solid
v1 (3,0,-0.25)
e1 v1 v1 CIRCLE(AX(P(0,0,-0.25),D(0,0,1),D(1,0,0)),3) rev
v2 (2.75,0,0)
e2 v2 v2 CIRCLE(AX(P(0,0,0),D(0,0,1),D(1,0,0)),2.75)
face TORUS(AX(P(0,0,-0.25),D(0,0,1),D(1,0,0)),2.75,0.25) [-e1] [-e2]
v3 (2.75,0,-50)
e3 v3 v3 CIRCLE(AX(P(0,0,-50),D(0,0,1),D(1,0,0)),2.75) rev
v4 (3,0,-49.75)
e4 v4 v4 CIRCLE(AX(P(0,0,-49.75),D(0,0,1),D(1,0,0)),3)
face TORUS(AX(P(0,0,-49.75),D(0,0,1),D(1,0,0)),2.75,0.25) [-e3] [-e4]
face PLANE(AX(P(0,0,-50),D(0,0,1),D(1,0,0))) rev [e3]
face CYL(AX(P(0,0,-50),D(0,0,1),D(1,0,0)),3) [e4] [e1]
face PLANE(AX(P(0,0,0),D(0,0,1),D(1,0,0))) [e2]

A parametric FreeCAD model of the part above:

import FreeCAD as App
import Part
import Sketcher
from FreeCAD import Vector


def edges_at(feature, points):
    """Names of the edges that pass closest to the given points."""
    edges = feature.Shape.Edges
    near = lambda p: min(range(len(edges)), key=lambda i: edges[i].distToShape(Part.Vertex(*p))[0])
    return sorted({f"Edge{near(p) + 1}" for p in points})

doc = App.newDocument("Part")
body = doc.addObject("PartDesign::Body", "Body")

# Sketch on XY plane
sketch1 = body.newObject("Sketcher::SketchObject", "Sketch")
sketch1.AttachmentSupport = (doc.getObject("XY_Plane"), [""])
sketch1.MapMode = "FlatFace"
sketch1.addGeometry(Part.Circle(Vector(0, 0, 0), Vector(0, 0, 1), 3), False)
sketch1.addConstraint([
    Sketcher.Constraint("Coincident", 0, 3, -1, 1),
    Sketcher.Constraint("Diameter", 0, 6.0),
])
pad1 = body.newObject("PartDesign::Pad", "Pad")
pad1.Profile = sketch1
pad1.Length = 50
pad1.Reversed = True
doc.recompute()

fillet = body.newObject("PartDesign::Fillet", "Fillet")
fillet.Base = (pad1, edges_at(pad1, [(-3, 0, 0), (-3, 0, -50)]))
fillet.Radius = 0.25

doc.recompute()
